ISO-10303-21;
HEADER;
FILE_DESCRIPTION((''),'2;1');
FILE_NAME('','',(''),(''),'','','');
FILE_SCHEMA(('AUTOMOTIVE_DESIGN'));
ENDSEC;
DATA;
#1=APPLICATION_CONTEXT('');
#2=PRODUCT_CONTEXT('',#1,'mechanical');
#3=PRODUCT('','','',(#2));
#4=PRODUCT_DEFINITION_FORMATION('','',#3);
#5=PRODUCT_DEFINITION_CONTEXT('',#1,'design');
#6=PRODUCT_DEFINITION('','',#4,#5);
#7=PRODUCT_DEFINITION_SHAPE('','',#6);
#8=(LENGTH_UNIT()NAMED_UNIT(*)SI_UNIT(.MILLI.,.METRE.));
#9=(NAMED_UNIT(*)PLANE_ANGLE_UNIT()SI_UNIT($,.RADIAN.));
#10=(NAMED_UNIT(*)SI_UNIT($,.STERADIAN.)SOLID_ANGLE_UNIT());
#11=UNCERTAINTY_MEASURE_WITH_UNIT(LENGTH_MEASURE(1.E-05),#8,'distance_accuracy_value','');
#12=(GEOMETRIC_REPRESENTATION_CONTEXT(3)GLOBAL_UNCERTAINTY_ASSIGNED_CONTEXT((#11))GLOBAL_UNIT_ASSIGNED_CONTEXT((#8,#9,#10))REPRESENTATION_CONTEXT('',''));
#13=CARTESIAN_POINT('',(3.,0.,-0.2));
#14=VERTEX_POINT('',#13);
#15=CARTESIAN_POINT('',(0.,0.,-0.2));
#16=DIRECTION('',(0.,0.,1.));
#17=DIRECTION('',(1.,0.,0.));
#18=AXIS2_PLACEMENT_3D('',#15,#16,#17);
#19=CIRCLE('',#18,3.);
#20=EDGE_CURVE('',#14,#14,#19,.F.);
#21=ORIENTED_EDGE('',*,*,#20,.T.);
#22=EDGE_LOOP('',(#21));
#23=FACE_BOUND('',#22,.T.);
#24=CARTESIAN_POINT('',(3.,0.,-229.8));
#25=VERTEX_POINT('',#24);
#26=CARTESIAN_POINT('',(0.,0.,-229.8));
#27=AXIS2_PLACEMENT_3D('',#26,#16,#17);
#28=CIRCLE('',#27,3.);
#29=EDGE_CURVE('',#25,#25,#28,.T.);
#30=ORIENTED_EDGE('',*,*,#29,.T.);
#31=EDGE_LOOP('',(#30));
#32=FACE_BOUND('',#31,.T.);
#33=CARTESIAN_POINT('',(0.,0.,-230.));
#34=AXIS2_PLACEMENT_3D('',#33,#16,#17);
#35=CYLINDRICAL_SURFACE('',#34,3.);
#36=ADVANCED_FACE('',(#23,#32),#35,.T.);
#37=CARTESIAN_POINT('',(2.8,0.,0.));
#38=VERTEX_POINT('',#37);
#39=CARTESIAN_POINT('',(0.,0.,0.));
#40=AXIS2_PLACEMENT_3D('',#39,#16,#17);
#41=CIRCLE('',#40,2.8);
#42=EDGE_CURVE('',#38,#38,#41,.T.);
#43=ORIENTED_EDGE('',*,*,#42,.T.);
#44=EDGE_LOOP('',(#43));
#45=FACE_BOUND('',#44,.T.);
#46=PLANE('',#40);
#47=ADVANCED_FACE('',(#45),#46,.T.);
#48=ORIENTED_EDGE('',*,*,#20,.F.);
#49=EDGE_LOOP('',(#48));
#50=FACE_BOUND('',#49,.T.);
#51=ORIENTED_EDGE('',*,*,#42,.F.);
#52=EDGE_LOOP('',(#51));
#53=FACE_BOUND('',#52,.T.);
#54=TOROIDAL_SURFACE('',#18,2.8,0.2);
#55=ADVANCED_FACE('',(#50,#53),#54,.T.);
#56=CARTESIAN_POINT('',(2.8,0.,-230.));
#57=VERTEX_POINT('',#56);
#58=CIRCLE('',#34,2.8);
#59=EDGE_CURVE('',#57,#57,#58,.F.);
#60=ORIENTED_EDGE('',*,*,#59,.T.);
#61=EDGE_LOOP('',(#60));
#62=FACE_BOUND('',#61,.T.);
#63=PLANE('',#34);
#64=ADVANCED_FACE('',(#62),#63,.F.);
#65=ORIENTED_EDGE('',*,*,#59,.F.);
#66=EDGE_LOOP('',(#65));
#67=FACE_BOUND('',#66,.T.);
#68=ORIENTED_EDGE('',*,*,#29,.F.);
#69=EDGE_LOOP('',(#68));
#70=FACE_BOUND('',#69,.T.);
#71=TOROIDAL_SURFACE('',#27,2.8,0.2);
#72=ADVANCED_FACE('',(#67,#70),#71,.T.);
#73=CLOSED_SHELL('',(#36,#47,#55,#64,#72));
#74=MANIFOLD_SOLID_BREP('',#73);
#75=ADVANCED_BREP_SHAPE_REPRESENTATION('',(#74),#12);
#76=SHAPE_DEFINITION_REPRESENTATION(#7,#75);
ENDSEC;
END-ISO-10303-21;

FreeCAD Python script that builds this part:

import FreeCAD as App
import Part
import Sketcher
from FreeCAD import Vector


def edges_at(feature, points):
    """Names of the edges that pass closest to the given points."""
    edges = feature.Shape.Edges
    near = lambda p: min(range(len(edges)), key=lambda i: edges[i].distToShape(Part.Vertex(*p))[0])
    return sorted({f"Edge{near(p) + 1}" for p in points})

doc = App.newDocument("Part")
body = doc.addObject("PartDesign::Body", "Body")

# Sketch on XY plane
sketch1 = doc.addObject("Sketcher::SketchObject", "Sketch")
body.addObject(sketch1)
sketch1.AttachmentSupport = (doc.XY_Plane, [""])
sketch1.MapMode = "FlatFace"
sketch1.addGeometry(Part.Circle(Vector(0, 0, 0), Vector(0, 0, 1), 3), False)
sketch1.addConstraint(Sketcher.Constraint("Coincident", 0, 3, -1, 1))
sketch1.addConstraint(Sketcher.Constraint("Diameter", 0, 6.0))
pad1 = doc.addObject("PartDesign::Pad", "Pad")
body.addObject(pad1)
pad1.Profile = sketch1
pad1.Length = 230
pad1.Reversed = True
doc.recompute()

fillet = doc.addObject("PartDesign::Fillet", "Fillet")
body.addObject(fillet)
fillet.Base = (pad1, edges_at(pad1, [(-3, 0, 0), (-3, 0, -230)]))
fillet.Radius = 0.2

doc.recompute()
